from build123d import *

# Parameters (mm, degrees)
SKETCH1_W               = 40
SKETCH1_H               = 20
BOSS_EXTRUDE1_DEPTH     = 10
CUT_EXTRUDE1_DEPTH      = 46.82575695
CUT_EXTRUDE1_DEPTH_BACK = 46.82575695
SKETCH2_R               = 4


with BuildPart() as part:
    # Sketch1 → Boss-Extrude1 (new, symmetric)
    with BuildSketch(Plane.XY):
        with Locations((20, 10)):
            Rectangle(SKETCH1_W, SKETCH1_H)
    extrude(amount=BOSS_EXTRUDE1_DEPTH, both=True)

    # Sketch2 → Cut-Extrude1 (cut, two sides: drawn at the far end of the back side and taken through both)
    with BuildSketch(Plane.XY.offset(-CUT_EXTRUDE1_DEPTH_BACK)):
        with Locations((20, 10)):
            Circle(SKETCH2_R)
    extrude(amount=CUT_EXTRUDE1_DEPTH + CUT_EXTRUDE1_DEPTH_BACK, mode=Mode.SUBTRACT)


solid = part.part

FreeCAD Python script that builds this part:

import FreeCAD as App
import Part
import Sketcher
from FreeCAD import Vector
Q = App.Units.Quantity

doc = App.newDocument("Part")
params = doc.addObject("Spreadsheet::Sheet", "Params")
for row, (alias, value) in enumerate([
    ("sketch1_width", "40 mm"),
    ("sketch1_height", "20 mm"),
    ("pad1_length", "20 mm"),
    ("sketch2_diameter", "8 mm"),
], start=1):
    params.set(f"A{row}", alias)
    params.set(f"B{row}", "=" + value)
    params.setAlias(f"B{row}", alias)

body = doc.addObject("PartDesign::Body", "Body")

# Sketch on XY plane
sketch1 = body.newObject("Sketcher::SketchObject", "Sketch")
sketch1.AttachmentSupport = (doc.getObject("XY_Plane"), [""])
sketch1.MapMode = "FlatFace"
sketch1.addGeometry([
    Part.LineSegment(Vector(0, 20, 0), Vector(0, 0, 0)),
    Part.LineSegment(Vector(0, 0, 0), Vector(40, 0, 0)),
    Part.LineSegment(Vector(40, 0, 0), Vector(40, 20, 0)),
    Part.LineSegment(Vector(40, 20, 0), Vector(0, 20, 0)),
], False)
sketch1.addConstraint([
    Sketcher.Constraint("Coincident", 0, 2, 1, 1),
    Sketcher.Constraint("Coincident", 1, 2, 2, 1),
    Sketcher.Constraint("Coincident", 2, 2, 3, 1),
    Sketcher.Constraint("Coincident", 3, 2, 0, 1),
    Sketcher.Constraint("Vertical", 0),
    Sketcher.Constraint("Horizontal", 1),
    Sketcher.Constraint("Vertical", 2),
    Sketcher.Constraint("Horizontal", 3),
    Sketcher.Constraint("Coincident", 0, 2, -1, 1),
    Sketcher.Constraint("DistanceX", 1, 1, 1, 2, Q("40 mm")),
    Sketcher.Constraint("DistanceY", 0, 2, 0, 1, Q("20 mm")),
])
sketch1.setExpression("Constraints[9]", "Params.sketch1_width")
sketch1.setExpression("Constraints[10]", "Params.sketch1_height")
pad1 = body.newObject("PartDesign::Pad", "Pad")
pad1.Profile = sketch1
pad1.setExpression("Length", "Params.pad1_length")
pad1.Midplane = True

# Sketch on XY plane
sketch2 = body.newObject("Sketcher::SketchObject", "Sketch001")
sketch2.AttachmentSupport = (doc.getObject("XY_Plane"), [""])
sketch2.MapMode = "FlatFace"
sketch2.addGeometry(Part.Circle(Vector(20, 10, 0), Vector(0, 0, 1), 4), False)
sketch2.addConstraint([
    Sketcher.Constraint("Diameter", 0, Q("8 mm")),
    Sketcher.Constraint("DistanceX", -1, 1, 0, 3, Q("20 mm")),
    Sketcher.Constraint("DistanceY", -1, 1, 0, 3, Q("10 mm")),
])
sketch2.setExpression("Constraints[0]", "Params.sketch2_diameter")
pocket1 = body.newObject("PartDesign::Pocket", "Pocket")
pocket1.Profile = sketch2
pocket1.Type = "ThroughAll"
pocket1.Midplane = True

doc.recompute()
